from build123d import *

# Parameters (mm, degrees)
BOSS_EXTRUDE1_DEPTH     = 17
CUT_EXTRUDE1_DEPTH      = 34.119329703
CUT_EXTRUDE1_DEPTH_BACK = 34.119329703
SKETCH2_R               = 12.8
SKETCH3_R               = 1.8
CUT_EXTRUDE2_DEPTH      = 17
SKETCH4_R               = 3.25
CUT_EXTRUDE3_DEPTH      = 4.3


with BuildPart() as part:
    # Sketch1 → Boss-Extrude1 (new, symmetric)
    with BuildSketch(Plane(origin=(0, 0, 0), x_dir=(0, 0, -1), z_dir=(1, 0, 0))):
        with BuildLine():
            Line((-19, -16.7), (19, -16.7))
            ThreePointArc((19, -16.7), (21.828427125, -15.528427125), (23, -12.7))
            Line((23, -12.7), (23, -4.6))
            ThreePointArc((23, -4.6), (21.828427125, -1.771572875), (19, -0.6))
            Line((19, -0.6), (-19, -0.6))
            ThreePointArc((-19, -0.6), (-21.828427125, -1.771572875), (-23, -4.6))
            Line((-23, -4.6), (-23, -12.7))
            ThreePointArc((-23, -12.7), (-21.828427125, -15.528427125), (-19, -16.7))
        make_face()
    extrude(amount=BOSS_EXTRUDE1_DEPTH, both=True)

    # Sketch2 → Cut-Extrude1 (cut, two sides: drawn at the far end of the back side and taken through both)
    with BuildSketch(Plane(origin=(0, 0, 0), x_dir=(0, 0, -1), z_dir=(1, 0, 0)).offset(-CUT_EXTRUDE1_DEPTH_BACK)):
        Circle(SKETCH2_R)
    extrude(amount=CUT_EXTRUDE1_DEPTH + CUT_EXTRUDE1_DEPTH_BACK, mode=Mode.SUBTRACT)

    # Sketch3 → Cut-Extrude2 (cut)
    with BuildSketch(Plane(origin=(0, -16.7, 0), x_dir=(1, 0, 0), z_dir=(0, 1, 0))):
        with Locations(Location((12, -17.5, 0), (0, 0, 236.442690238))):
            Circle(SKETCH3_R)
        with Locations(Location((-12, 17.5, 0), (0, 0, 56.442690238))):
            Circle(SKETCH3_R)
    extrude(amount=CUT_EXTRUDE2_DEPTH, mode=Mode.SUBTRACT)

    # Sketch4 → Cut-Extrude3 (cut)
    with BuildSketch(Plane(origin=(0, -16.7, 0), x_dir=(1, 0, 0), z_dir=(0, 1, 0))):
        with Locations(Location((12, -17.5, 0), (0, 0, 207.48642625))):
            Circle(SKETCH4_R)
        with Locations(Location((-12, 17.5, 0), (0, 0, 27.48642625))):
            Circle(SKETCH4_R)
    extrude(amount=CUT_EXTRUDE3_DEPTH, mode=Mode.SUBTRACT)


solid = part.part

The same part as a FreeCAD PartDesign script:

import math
import FreeCAD as App
import Part
import Sketcher

doc = App.newDocument("Part")
body = doc.addObject("PartDesign::Body", "Body")

# Sketch on YZ plane
sketch1 = doc.addObject("Sketcher::SketchObject", "Sketch")
body.addObject(sketch1)
sketch1.AttachmentSupport = (doc.YZ_Plane, [""])
sketch1.MapMode = "FlatFace"
sketch1.addGeometry(Part.LineSegment(App.Vector(-16.7, 19, 0), App.Vector(-16.7, -19, 0)), False)
sketch1.addGeometry(Part.ArcOfCircle(Part.Circle(App.Vector(-12.7, -19, 0), App.Vector(0, 0, 1), 4), math.radians(180), math.radians(270)), False)
sketch1.addGeometry(Part.LineSegment(App.Vector(-12.7, -23, 0), App.Vector(-4.6, -23, 0)), False)
sketch1.addGeometry(Part.ArcOfCircle(Part.Circle(App.Vector(-4.6, -19, 0), App.Vector(0, 0, 1), 4), math.radians(-90), math.radians(0)), False)
sketch1.addGeometry(Part.LineSegment(App.Vector(-0.6, -19, 0), App.Vector(-0.6, 19, 0)), False)
sketch1.addGeometry(Part.ArcOfCircle(Part.Circle(App.Vector(-4.6, 19, 0), App.Vector(0, 0, 1), 4), math.radians(0), math.radians(90)), False)
sketch1.addGeometry(Part.LineSegment(App.Vector(-4.6, 23, 0), App.Vector(-12.7, 23, 0)), False)
sketch1.addGeometry(Part.ArcOfCircle(Part.Circle(App.Vector(-12.7, 19, 0), App.Vector(0, 0, 1), 4), math.radians(90), math.radians(180)), False)
sketch1.addConstraint(Sketcher.Constraint("Tangent", 0, 2, 1, 1))
sketch1.addConstraint(Sketcher.Constraint("Tangent", 1, 2, 2, 1))
sketch1.addConstraint(Sketcher.Constraint("Tangent", 2, 2, 3, 1))
sketch1.addConstraint(Sketcher.Constraint("Tangent", 3, 2, 4, 1))
sketch1.addConstraint(Sketcher.Constraint("Tangent", 4, 2, 5, 1))
sketch1.addConstraint(Sketcher.Constraint("Tangent", 5, 2, 6, 1))
sketch1.addConstraint(Sketcher.Constraint("Tangent", 6, 2, 7, 1))
sketch1.addConstraint(Sketcher.Constraint("Tangent", 7, 2, 0, 1))
sketch1.addConstraint(Sketcher.Constraint("Vertical", 0))
sketch1.addConstraint(Sketcher.Constraint("Horizontal", 2))
sketch1.addConstraint(Sketcher.Constraint("Vertical", 4))
sketch1.addConstraint(Sketcher.Constraint("Horizontal", 6))
sketch1.addConstraint(Sketcher.Constraint("Equal", 1, 3))
sketch1.addConstraint(Sketcher.Constraint("Equal", 3, 5))
sketch1.addConstraint(Sketcher.Constraint("Equal", 5, 7))
sketch1.addConstraint(Sketcher.Constraint("Radius", 1, 4.0))
sketch1.addConstraint(Sketcher.Constraint("DistanceY", 0, 2, 0, 1, 38.0))
sketch1.addConstraint(Sketcher.Constraint("DistanceX", 2, 1, 2, 2, 8.1))
sketch1.addConstraint(Sketcher.Constraint("DistanceY", 1, 3, -1, 1, 19.0))
sketch1.addConstraint(Sketcher.Constraint("DistanceX", 1, 3, -1, 1, 12.7))
pad1 = doc.addObject("PartDesign::Pad", "Pad")
body.addObject(pad1)
pad1.Profile = sketch1
pad1.Length = 34
pad1.Midplane = True

# Sketch on YZ plane
sketch2 = doc.addObject("Sketcher::SketchObject", "Sketch001")
body.addObject(sketch2)
sketch2.AttachmentSupport = (doc.YZ_Plane, [""])
sketch2.MapMode = "FlatFace"
sketch2.addGeometry(Part.Circle(App.Vector(0, 0, 0), App.Vector(0, 0, 1), 13), False)
sketch2.addConstraint(Sketcher.Constraint("Coincident", 0, 3, -1, 1))
sketch2.addConstraint(Sketcher.Constraint("Diameter", 0, 25.6))
pocket1 = doc.addObject("PartDesign::Pocket", "Pocket")
body.addObject(pocket1)
pocket1.Profile = sketch2
pocket1.Type = "ThroughAll"
pocket1.Midplane = True

# Sketch on XZ plane
sketch3 = doc.addObject("Sketcher::SketchObject", "Sketch002")
body.addObject(sketch3)
sketch3.AttachmentSupport = (doc.XZ_Plane, [""])
sketch3.MapMode = "FlatFace"
sketch3.AttachmentOffset = App.Placement(App.Vector(0, 0, 16.7), App.Rotation())
sketch3.addGeometry(Part.Circle(App.Vector(12, 17.5, 0), App.Vector(0, 0, 1), 1.8), False)
sketch3.addGeometry(Part.Circle(App.Vector(-12, -17.5, 0), App.Vector(0, 0, 1), 1.8), False)
sketch3.addConstraint(Sketcher.Constraint("Equal", 0, 1))
sketch3.addConstraint(Sketcher.Constraint("Symmetric", 0, 3, 1, 3, -1, 1))
sketch3.addConstraint(Sketcher.Constraint("Diameter", 0, 3.6))
sketch3.addConstraint(Sketcher.Constraint("DistanceX", -1, 1, 0, 3, 12.0))
sketch3.addConstraint(Sketcher.Constraint("DistanceY", 1, 3, 0, 3, 35.0))
pocket2 = doc.addObject("PartDesign::Pocket", "Pocket001")
body.addObject(pocket2)
pocket2.Profile = sketch3
pocket2.Length = 17

# Sketch on XZ plane
sketch4 = doc.addObject("Sketcher::SketchObject", "Sketch003")
body.addObject(sketch4)
sketch4.AttachmentSupport = (doc.XZ_Plane, [""])
sketch4.MapMode = "FlatFace"
sketch4.AttachmentOffset = App.Placement(App.Vector(0, 0, 16.7), App.Rotation())
sketch4.addGeometry(Part.Circle(App.Vector(12, 17.5, 0), App.Vector(0, 0, 1), 3.2), False)
sketch4.addGeometry(Part.Circle(App.Vector(-12, -17.5, 0), App.Vector(0, 0, 1), 3.2), False)
sketch4.addConstraint(Sketcher.Constraint("Equal", 0, 1))
sketch4.addConstraint(Sketcher.Constraint("Symmetric", 0, 3, 1, 3, -1, 1))
sketch4.addConstraint(Sketcher.Constraint("Diameter", 0, 6.5))
sketch4.addConstraint(Sketcher.Constraint("DistanceX", -1, 1, 0, 3, 12.0))
sketch4.addConstraint(Sketcher.Constraint("DistanceY", 1, 3, 0, 3, 35.0))
pocket3 = doc.addObject("PartDesign::Pocket", "Pocket002")
body.addObject(pocket3)
pocket3.Profile = sketch4
pocket3.Length = 4.3

doc.recompute()
